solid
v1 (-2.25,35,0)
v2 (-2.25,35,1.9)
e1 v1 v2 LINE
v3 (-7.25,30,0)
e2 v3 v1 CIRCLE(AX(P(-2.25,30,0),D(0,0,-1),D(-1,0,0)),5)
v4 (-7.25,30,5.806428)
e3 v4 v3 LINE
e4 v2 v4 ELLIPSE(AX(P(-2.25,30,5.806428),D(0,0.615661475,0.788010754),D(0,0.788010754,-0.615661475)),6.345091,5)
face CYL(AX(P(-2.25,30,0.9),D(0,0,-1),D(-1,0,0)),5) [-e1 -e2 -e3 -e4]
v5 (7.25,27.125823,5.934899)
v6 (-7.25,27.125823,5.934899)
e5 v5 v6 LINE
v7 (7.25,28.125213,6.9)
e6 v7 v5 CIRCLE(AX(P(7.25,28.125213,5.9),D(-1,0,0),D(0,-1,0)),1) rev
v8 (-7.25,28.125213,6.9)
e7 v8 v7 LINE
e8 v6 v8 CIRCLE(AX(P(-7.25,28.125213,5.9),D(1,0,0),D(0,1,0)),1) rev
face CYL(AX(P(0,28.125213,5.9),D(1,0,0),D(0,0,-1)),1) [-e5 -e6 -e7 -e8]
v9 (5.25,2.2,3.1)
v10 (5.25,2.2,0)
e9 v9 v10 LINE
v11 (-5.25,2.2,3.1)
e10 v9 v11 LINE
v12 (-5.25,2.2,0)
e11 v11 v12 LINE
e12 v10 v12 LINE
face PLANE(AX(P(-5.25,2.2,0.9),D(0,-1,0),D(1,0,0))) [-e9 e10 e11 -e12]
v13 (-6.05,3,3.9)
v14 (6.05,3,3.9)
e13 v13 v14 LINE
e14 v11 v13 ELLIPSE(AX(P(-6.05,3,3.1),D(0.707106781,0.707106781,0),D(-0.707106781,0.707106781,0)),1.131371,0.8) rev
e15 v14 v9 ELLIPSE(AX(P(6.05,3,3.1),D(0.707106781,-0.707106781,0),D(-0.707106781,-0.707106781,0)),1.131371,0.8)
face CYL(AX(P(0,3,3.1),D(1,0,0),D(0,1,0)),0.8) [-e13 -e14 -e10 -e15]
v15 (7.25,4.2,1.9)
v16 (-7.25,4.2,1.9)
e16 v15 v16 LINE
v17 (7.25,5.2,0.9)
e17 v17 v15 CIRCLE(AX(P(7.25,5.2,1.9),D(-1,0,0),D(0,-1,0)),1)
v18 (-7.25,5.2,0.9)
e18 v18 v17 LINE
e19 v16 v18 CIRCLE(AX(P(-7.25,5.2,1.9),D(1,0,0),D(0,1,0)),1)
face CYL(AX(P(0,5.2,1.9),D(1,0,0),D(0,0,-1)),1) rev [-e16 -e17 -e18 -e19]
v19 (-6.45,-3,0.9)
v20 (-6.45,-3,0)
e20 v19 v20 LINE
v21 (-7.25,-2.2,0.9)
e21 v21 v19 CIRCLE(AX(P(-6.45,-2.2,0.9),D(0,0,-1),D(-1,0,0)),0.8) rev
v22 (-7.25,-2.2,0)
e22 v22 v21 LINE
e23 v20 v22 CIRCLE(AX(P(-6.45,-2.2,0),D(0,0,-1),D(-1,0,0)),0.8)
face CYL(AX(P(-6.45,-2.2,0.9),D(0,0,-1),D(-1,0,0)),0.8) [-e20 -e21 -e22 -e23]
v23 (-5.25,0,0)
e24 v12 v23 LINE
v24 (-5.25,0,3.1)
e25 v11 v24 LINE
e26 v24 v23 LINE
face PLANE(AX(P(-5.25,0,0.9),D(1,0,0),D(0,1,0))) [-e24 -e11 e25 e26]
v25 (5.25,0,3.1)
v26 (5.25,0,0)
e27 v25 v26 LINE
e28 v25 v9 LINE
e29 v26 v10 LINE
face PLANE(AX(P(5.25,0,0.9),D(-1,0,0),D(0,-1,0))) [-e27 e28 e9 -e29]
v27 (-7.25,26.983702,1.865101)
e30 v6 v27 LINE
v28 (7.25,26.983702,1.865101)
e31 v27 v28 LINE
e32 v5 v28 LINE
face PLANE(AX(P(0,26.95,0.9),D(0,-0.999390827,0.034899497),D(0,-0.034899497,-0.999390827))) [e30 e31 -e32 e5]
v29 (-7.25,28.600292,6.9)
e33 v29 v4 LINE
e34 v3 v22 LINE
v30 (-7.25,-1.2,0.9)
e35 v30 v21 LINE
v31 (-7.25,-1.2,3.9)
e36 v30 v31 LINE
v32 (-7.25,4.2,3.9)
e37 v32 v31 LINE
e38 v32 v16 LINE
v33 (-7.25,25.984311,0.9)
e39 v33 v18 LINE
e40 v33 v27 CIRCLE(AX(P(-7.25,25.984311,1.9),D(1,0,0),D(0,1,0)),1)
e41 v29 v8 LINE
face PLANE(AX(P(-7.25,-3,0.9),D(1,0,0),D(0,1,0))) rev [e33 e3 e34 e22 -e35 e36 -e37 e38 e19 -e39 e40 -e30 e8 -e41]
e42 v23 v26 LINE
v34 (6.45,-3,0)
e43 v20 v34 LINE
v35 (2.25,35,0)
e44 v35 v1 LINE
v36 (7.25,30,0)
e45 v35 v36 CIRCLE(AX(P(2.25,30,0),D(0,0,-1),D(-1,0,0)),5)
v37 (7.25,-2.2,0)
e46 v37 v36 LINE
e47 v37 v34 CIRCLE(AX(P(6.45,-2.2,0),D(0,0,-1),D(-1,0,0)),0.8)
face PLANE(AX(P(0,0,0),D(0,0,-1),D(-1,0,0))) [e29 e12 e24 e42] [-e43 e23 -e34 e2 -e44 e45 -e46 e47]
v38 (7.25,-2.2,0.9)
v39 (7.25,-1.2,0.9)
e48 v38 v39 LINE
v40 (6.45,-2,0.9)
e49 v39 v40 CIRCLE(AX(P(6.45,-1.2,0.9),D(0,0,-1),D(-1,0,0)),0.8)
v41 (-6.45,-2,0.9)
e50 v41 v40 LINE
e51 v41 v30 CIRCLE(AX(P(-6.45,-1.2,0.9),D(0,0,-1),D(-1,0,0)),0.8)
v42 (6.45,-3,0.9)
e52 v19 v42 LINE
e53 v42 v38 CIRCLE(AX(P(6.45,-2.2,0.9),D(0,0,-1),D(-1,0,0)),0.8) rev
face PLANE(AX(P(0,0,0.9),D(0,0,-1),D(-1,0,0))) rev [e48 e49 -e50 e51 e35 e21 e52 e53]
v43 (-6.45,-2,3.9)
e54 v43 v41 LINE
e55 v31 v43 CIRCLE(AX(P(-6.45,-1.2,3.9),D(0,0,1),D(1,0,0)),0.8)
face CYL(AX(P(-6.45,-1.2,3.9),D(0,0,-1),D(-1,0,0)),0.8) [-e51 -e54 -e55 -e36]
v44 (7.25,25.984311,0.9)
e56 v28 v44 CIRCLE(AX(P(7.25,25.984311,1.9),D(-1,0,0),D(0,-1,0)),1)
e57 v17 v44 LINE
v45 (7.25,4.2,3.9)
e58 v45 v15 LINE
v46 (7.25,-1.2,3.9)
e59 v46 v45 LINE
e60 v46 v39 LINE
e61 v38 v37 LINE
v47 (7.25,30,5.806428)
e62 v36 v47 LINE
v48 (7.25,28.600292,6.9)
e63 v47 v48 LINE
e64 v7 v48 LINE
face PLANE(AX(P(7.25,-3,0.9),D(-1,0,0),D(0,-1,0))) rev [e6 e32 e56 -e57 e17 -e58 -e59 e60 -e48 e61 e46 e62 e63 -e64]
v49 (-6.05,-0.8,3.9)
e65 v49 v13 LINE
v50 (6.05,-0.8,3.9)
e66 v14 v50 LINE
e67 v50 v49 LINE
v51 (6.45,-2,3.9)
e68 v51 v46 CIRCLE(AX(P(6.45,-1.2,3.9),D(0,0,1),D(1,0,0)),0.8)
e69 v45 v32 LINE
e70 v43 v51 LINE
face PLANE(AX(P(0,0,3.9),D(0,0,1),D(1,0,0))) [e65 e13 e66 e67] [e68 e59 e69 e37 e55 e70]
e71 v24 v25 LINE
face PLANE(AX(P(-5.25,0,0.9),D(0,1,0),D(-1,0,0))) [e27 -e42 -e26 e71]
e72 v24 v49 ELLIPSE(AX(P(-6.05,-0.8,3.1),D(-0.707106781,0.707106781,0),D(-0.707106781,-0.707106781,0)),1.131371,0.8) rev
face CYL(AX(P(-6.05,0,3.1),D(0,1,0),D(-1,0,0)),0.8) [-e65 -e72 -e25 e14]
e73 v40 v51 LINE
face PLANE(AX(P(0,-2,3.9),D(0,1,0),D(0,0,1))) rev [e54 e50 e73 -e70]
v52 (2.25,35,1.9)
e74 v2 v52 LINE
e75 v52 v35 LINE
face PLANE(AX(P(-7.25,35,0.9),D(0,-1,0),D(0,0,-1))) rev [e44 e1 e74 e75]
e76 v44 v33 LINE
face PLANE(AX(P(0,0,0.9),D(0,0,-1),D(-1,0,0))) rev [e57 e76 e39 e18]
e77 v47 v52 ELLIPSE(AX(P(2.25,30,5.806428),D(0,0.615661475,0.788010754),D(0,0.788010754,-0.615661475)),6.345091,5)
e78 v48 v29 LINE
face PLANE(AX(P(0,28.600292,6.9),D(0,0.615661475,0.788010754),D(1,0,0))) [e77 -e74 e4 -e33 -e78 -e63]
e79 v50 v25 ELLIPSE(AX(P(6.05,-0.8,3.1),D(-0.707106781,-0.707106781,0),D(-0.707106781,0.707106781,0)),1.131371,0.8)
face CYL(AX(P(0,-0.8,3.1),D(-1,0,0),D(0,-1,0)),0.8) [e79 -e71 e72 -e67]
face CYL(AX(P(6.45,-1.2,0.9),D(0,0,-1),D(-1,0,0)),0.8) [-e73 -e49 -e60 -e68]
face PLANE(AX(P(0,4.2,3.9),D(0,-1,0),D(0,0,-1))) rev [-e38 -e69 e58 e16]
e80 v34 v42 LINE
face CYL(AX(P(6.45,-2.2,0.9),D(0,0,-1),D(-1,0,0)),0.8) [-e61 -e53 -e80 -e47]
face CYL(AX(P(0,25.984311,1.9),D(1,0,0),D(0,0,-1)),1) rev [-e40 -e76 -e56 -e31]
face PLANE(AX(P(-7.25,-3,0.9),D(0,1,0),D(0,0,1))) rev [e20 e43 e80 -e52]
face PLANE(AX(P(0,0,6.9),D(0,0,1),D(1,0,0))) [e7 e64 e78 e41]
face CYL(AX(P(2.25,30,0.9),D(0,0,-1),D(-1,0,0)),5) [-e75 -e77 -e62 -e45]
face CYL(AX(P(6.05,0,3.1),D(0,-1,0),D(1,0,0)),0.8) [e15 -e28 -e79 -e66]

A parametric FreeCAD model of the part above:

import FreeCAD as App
import Part
import Sketcher
from FreeCAD import Vector
Q = App.Units.Quantity


def edges_at(feature, points):
    """Names of the edges that pass closest to the given points."""
    edges = feature.Shape.Edges
    near = lambda p: min(range(len(edges)), key=lambda i: edges[i].distToShape(Part.Vertex(*p))[0])
    return sorted({f"Edge{near(p) + 1}" for p in points})


def faces_at(feature, points):
    """Names of the faces that lie closest to the given points."""
    faces = feature.Shape.Faces
    near = lambda p: min(range(len(faces)), key=lambda i: faces[i].distToShape(Part.Vertex(*p))[0])
    return sorted({f"Face{near(p) + 1}" for p in points})


def add_polygon(sketch, points):
    """Adds a closed chain of lines whose ends are joined by coincident constraints."""
    first, n = sketch.GeometryCount, len(points)
    for a, b in zip(points, points[1:] + points[:1]):
        sketch.addGeometry(Part.LineSegment(App.Vector(*a, 0), App.Vector(*b, 0)), False)
    for i in range(n):
        sketch.addConstraint(Sketcher.Constraint("Coincident", first + i, 2, first + (i + 1) % n, 1))

doc = App.newDocument("Part")
body = doc.addObject("PartDesign::Body", "Body")

sketch1 = body.newObject("Sketcher::SketchObject", "Sketch")
sketch1.AttachmentSupport = (doc.getObject("XY_Plane"), [""])
sketch1.MapMode = "FlatFace"
add_polygon(sketch1, [(-7.2, 35), (-7.2, -3), (7.2, -3), (7.2, 35)])
add_polygon(sketch1, [(5.2, 0), (-5.2, 0), (-5.2, 2.2), (5.2, 2.2)])
sketch1.addConstraint([
    Sketcher.Constraint("Vertical", 0),
    Sketcher.Constraint("Horizontal", 1),
    Sketcher.Constraint("Vertical", 2),
    Sketcher.Constraint("Horizontal", 3),
    Sketcher.Constraint("Horizontal", 4),
    Sketcher.Constraint("Vertical", 5),
    Sketcher.Constraint("Horizontal", 6),
    Sketcher.Constraint("Vertical", 7),
    Sketcher.Constraint("Symmetric", 4, 2, 7, 2, -1, 1),
    Sketcher.Constraint("DistanceY", 0, 2, 0, 1, Q("38 mm")),
    Sketcher.Constraint("DistanceX", 1, 1, 1, 2, Q("14.5 mm")),
    Sketcher.Constraint("DistanceX", 4, 2, 4, 1, Q("10.5 mm")),
    Sketcher.Constraint("DistanceY", 5, 1, 5, 2, Q("2.2 mm")),
    Sketcher.Constraint("DistanceY", 0, 2, -1, 1, Q("3 mm")),
    Sketcher.Constraint("DistanceX", 0, 2, 4, 2, Q("2 mm")),
])
pad1 = body.newObject("PartDesign::Pad", "Pad")
pad1.Profile = sketch1
pad1.Length = 0.9

sketch2 = body.newObject("Sketcher::SketchObject", "Sketch001")
sketch2.AttachmentSupport = (doc.getObject("XY_Plane"), [""])
sketch2.MapMode = "FlatFace"
sketch2.AttachmentOffset = App.Placement(Vector(0, 0, 0.9), App.Rotation())
add_polygon(sketch2, [(-7, 35), (-7, 27), (7, 27), (7, 35)])
sketch2.addConstraint([
    Sketcher.Constraint("Vertical", 0),
    Sketcher.Constraint("Horizontal", 1),
    Sketcher.Constraint("Vertical", 2),
    Sketcher.Constraint("Horizontal", 3),
    Sketcher.Constraint("DistanceX", 1, 1, 1, 2, Q("14.5 mm")),
    Sketcher.Constraint("DistanceY", -1, 1, 2, 2, Q("35 mm")),
    Sketcher.Constraint("DistanceY", 0, 2, 0, 1, Q("8.05 mm")),
    Sketcher.Constraint("DistanceX", 0, 2, -1, 1, Q("7.25 mm")),
])
pad2 = body.newObject("PartDesign::Pad", "Pad001")
pad2.Profile = sketch2
pad2.Length = 6
doc.recompute()

datumplane = body.newObject("PartDesign::Plane", "DatumPlane")
datumplane.AttachmentSupport = (doc.getObject("XY_Plane"), [""])
datumplane.MapMode = "FlatFace"
datumplane.AttachmentOffset = App.Placement(Vector(0, 0, 0.9), App.Rotation())
draft = body.newObject("PartDesign::Draft", "Draft")
draft.Base = (pad2, faces_at(pad2, [(0, 26.95, 3.9)]))
draft.NeutralPlane = (datumplane, [""])
draft.Angle = 2
draft.Reversed = False

sketch3 = body.newObject("Sketcher::SketchObject", "Sketch002")
sketch3.AttachmentSupport = (doc.getObject("XY_Plane"), [""])
sketch3.MapMode = "FlatFace"
sketch3.AttachmentOffset = App.Placement(Vector(0, 0, 0.9), App.Rotation())
add_polygon(sketch3, [(-7.2, 4.2), (-7.2, -2), (7.2, -2), (7.2, 4.2)])
add_polygon(sketch3, [(5.2, 0), (-5.2, 0), (-5.2, 2.2), (5.2, 2.2)])
sketch3.addConstraint([
    Sketcher.Constraint("Vertical", 0),
    Sketcher.Constraint("Horizontal", 1),
    Sketcher.Constraint("Vertical", 2),
    Sketcher.Constraint("Horizontal", 3),
    Sketcher.Constraint("Horizontal", 4),
    Sketcher.Constraint("Vertical", 5),
    Sketcher.Constraint("Horizontal", 6),
    Sketcher.Constraint("Vertical", 7),
    Sketcher.Constraint("Symmetric", 4, 2, 7, 2, -1, 1),
    Sketcher.Constraint("DistanceX", 1, 1, 1, 2, Q("14.5 mm")),
    Sketcher.Constraint("DistanceX", 4, 2, 4, 1, Q("10.5 mm")),
    Sketcher.Constraint("DistanceY", 0, 2, 0, 1, Q("6.2 mm")),
    Sketcher.Constraint("DistanceY", 5, 1, 5, 2, Q("2.2 mm")),
    Sketcher.Constraint("DistanceY", 0, 2, -1, 1, Q("2 mm")),
    Sketcher.Constraint("DistanceX", 0, 2, 4, 2, Q("2 mm")),
])
pad3 = body.newObject("PartDesign::Pad", "Pad002")
pad3.Profile = sketch3
pad3.Length = 3
doc.recompute()

chamfer = body.newObject("PartDesign::Chamfer", "Chamfer")
chamfer.Base = (pad3, edges_at(pad3, [(0, 35, 6.9)]))
chamfer.ChamferType = "Two distances"
chamfer.Size = 5
chamfer.Size2 = 6.399708
doc.recompute()

fillet = body.newObject("PartDesign::Fillet", "Fillet")
fillet.Base = (chamfer, edges_at(chamfer, [(0, 27.16, 6.9)]))
fillet.Radius = 1
doc.recompute()

fillet2 = body.newObject("PartDesign::Fillet", "Fillet001")
fillet2.Base = (fillet, edges_at(fillet, [(0, 26.95, 0.9), (0, 4.2, 0.9)]))
fillet2.Radius = 1
doc.recompute()

fillet3 = body.newObject("PartDesign::Fillet", "Fillet002")
fillet3.Base = (fillet2, edges_at(fillet2, [(-7.25, 35, 0.95), (7.25, 35, 0.95)]))
fillet3.Radius = 5
doc.recompute()

fillet4 = body.newObject("PartDesign::Fillet", "Fillet003")
fillet4.Base = (fillet3, edges_at(fillet3, [
    (7.25, -2, 2.4),
    (-7.25, -2, 2.4),
    (0, 0, 3.9),
    (-5.25, 1.1, 3.9),
    (0, 2.2, 3.9),
    (5.25, 1.1, 3.9),
    (7.25, -3, 0.45),
    (-7.25, -3, 0.45),
]))
fillet4.Radius = 0.8

doc.recompute()
